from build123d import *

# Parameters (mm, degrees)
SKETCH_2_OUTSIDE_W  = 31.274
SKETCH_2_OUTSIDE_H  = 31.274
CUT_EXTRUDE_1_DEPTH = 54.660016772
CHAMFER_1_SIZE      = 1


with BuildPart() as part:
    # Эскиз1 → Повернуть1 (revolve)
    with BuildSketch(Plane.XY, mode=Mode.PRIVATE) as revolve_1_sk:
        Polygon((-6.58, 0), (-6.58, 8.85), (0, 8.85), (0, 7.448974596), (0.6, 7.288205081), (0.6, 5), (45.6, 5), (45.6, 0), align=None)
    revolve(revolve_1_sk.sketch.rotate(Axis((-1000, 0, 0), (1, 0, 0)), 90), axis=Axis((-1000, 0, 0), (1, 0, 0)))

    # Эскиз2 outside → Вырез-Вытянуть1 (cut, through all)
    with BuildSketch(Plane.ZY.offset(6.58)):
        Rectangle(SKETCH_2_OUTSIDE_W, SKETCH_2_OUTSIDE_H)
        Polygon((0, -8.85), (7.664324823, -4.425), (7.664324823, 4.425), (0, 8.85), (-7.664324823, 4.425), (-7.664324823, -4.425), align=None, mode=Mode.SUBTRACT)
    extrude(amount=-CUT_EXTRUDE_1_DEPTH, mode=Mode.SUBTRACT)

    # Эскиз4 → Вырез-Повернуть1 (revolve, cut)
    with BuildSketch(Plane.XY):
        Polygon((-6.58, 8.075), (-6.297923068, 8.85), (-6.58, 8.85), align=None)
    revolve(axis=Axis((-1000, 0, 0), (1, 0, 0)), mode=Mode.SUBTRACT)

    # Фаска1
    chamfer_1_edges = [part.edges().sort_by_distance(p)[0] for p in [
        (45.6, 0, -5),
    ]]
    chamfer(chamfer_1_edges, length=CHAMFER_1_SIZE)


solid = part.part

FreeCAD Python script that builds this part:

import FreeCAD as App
import Part
import Sketcher
from FreeCAD import Vector
Q = App.Units.Quantity


def edges_at(feature, points):
    """Names of the edges that pass closest to the given points."""
    edges = feature.Shape.Edges
    near = lambda p: min(range(len(edges)), key=lambda i: edges[i].distToShape(Part.Vertex(*p))[0])
    return sorted({f"Edge{near(p) + 1}" for p in points})

doc = App.newDocument("Part")
body = doc.addObject("PartDesign::Body", "Body")

# Sketch on XY plane
sketch1 = body.newObject("Sketcher::SketchObject", "Sketch")
sketch1.AttachmentSupport = (doc.getObject("XY_Plane"), [""])
sketch1.MapMode = "FlatFace"
sketch1.addGeometry(Part.LineSegment(Vector(-6.6, 8.8, 0), Vector(-6.6, 0, 0)), False)
sketch1.addGeometry(Part.LineSegment(Vector(-6.6, 0, 0), Vector(45.6, 0, 0)), False)
sketch1.addGeometry(Part.LineSegment(Vector(45.6, 0, 0), Vector(45.6, 5, 0)), False)
sketch1.addGeometry(Part.LineSegment(Vector(45.6, 5, 0), Vector(0.6, 5, 0)), False)
sketch1.addGeometry(Part.LineSegment(Vector(0.6, 5, 0), Vector(0.6, 7.3, 0)), False)
sketch1.addGeometry(Part.LineSegment(Vector(0.6, 7.3, 0), Vector(0, 7.4, 0)), False)
sketch1.addGeometry(Part.LineSegment(Vector(0, 7.4, 0), Vector(0, 8.8, 0)), False)
sketch1.addGeometry(Part.LineSegment(Vector(0, 8.8, 0), Vector(-6.6, 8.8, 0)), False)
sketch1.addConstraint(Sketcher.Constraint("Coincident", 0, 2, 1, 1))
sketch1.addConstraint(Sketcher.Constraint("Coincident", 1, 2, 2, 1))
sketch1.addConstraint(Sketcher.Constraint("Coincident", 2, 2, 3, 1))
sketch1.addConstraint(Sketcher.Constraint("Coincident", 3, 2, 4, 1))
sketch1.addConstraint(Sketcher.Constraint("Coincident", 4, 2, 5, 1))
sketch1.addConstraint(Sketcher.Constraint("Coincident", 5, 2, 6, 1))
sketch1.addConstraint(Sketcher.Constraint("Coincident", 6, 2, 7, 1))
sketch1.addConstraint(Sketcher.Constraint("Coincident", 7, 2, 0, 1))
sketch1.addConstraint(Sketcher.Constraint("Vertical", 0))
sketch1.addConstraint(Sketcher.Constraint("Horizontal", 1))
sketch1.addConstraint(Sketcher.Constraint("Vertical", 2))
sketch1.addConstraint(Sketcher.Constraint("Horizontal", 3))
sketch1.addConstraint(Sketcher.Constraint("Vertical", 4))
sketch1.addConstraint(Sketcher.Constraint("Vertical", 6))
sketch1.addConstraint(Sketcher.Constraint("Horizontal", 7))
sketch1.addConstraint(Sketcher.Constraint("PointOnObject", 0, 2, -1))
sketch1.addConstraint(Sketcher.Constraint("PointOnObject", 5, 2, -2))
sketch1.addConstraint(Sketcher.Constraint("DistanceX", 3, 2, 3, 1, Q("45 mm")))
sketch1.addConstraint(Sketcher.Constraint("DistanceY", 2, 1, 2, 2, Q("5 mm")))
sketch1.addConstraint(Sketcher.Constraint("Angle", 5, Q("165 deg")))
sketch1.addConstraint(Sketcher.Constraint("DistanceX", 1, 1, 1, 2, Q("52.18 mm")))
sketch1.addConstraint(Sketcher.Constraint("DistanceX", 7, 2, 7, 1, Q("6.58 mm")))
sketch1.addConstraint(Sketcher.Constraint("DistanceY", 0, 2, 0, 1, Q("8.85 mm")))
sketch1.addConstraint(Sketcher.Constraint("DistanceY", 4, 1, 4, 2, Q("2.288205 mm")))
revolution = body.newObject("PartDesign::Revolution", "Revolution")
revolution.Profile = sketch1
revolution.ReferenceAxis = (sketch1, ["H_Axis"])
revolution.Angle = 360

# Sketch on YZ plane
sketch2 = body.newObject("Sketcher::SketchObject", "Sketch001")
sketch2.AttachmentSupport = (doc.getObject("YZ_Plane"), [""])
sketch2.MapMode = "FlatFace"
sketch2.AttachmentOffset = App.Placement(Vector(0, 0, -6.58), App.Rotation())
sketch2.addGeometry(Part.LineSegment(Vector(16, -16, 0), Vector(-16, -16, 0)), False)
sketch2.addGeometry(Part.LineSegment(Vector(-16, -16, 0), Vector(-16, 16, 0)), False)
sketch2.addGeometry(Part.LineSegment(Vector(-16, 16, 0), Vector(16, 16, 0)), False)
sketch2.addGeometry(Part.LineSegment(Vector(16, 16, 0), Vector(16, -16, 0)), False)
sketch2.addGeometry(Part.LineSegment(Vector(-4, 8, 0), Vector(-9, 0, 0)), False)
sketch2.addGeometry(Part.LineSegment(Vector(-9, 0, 0), Vector(-4, -8, 0)), False)
sketch2.addGeometry(Part.LineSegment(Vector(-4, -8, 0), Vector(4, -8, 0)), False)
sketch2.addGeometry(Part.LineSegment(Vector(4, -8, 0), Vector(9, 0, 0)), False)
sketch2.addGeometry(Part.LineSegment(Vector(9, 0, 0), Vector(4, 8, 0)), False)
sketch2.addGeometry(Part.LineSegment(Vector(4, 8, 0), Vector(-4, 8, 0)), False)
sketch2.addConstraint(Sketcher.Constraint("Coincident", 0, 2, 1, 1))
sketch2.addConstraint(Sketcher.Constraint("Coincident", 1, 2, 2, 1))
sketch2.addConstraint(Sketcher.Constraint("Coincident", 2, 2, 3, 1))
sketch2.addConstraint(Sketcher.Constraint("Coincident", 3, 2, 0, 1))
sketch2.addConstraint(Sketcher.Constraint("Coincident", 4, 2, 5, 1))
sketch2.addConstraint(Sketcher.Constraint("Coincident", 5, 2, 6, 1))
sketch2.addConstraint(Sketcher.Constraint("Coincident", 6, 2, 7, 1))
sketch2.addConstraint(Sketcher.Constraint("Coincident", 7, 2, 8, 1))
sketch2.addConstraint(Sketcher.Constraint("Coincident", 8, 2, 9, 1))
sketch2.addConstraint(Sketcher.Constraint("Coincident", 9, 2, 4, 1))
sketch2.addConstraint(Sketcher.Constraint("Horizontal", 0))
sketch2.addConstraint(Sketcher.Constraint("Vertical", 1))
sketch2.addConstraint(Sketcher.Constraint("Horizontal", 2))
sketch2.addConstraint(Sketcher.Constraint("Vertical", 3))
sketch2.addConstraint(Sketcher.Constraint("Horizontal", 6))
sketch2.addConstraint(Sketcher.Constraint("Horizontal", 9))
sketch2.addConstraint(Sketcher.Constraint("Symmetric", 0, 2, 2, 2, -1, 1))
sketch2.addConstraint(Sketcher.Constraint("Symmetric", 4, 2, 7, 2, -1, 1))
sketch2.addConstraint(Sketcher.Constraint("Symmetric", 5, 2, 8, 2, -1, 1))
sketch2.addConstraint(Sketcher.Constraint("PointOnObject", 4, 2, -1))
sketch2.addConstraint(Sketcher.Constraint("Parallel", 4, 7))
sketch2.addConstraint(Sketcher.Constraint("Vertical", 6, 2, 8, 2))
sketch2.addConstraint(Sketcher.Constraint("Equal", 2, 1))
sketch2.addConstraint(Sketcher.Constraint("Angle", 4, Q("-120 deg")))
sketch2.addConstraint(Sketcher.Constraint("DistanceX", 6, 1, 6, 2, Q("8.85 mm")))
sketch2.addConstraint(Sketcher.Constraint("DistanceX", 4, 2, 7, 2, Q("17.7 mm")))
sketch2.addConstraint(Sketcher.Constraint("DistanceX", 0, 2, 0, 1, Q("31.274 mm")))
pocket1 = body.newObject("PartDesign::Pocket", "Pocket")
pocket1.Profile = sketch2
pocket1.Type = "ThroughAll"
pocket1.Reversed = True

# Sketch on XY plane
sketch3 = body.newObject("Sketcher::SketchObject", "Sketch002")
sketch3.AttachmentSupport = (doc.getObject("XY_Plane"), [""])
sketch3.MapMode = "FlatFace"
sketch3.addGeometry(Part.LineSegment(Vector(-6.58, 8.07, 0), Vector(-6.3, 8.85, 0)), False)
sketch3.addGeometry(Part.LineSegment(Vector(-6.3, 8.85, 0), Vector(-6.58, 8.85, 0)), False)
sketch3.addGeometry(Part.LineSegment(Vector(-6.58, 8.85, 0), Vector(-6.58, 8.07, 0)), False)
sketch3.addConstraint(Sketcher.Constraint("Coincident", 0, 2, 1, 1))
sketch3.addConstraint(Sketcher.Constraint("Coincident", 1, 2, 2, 1))
sketch3.addConstraint(Sketcher.Constraint("Coincident", 2, 2, 0, 1))
sketch3.addConstraint(Sketcher.Constraint("Horizontal", 1))
sketch3.addConstraint(Sketcher.Constraint("Vertical", 2))
sketch3.addConstraint(Sketcher.Constraint("Angle", 0, Q("70 deg")))
sketch3.addConstraint(Sketcher.Constraint("DistanceY", 2, 2, 2, 1, Q("0.775 mm")))
sketch3.addConstraint(Sketcher.Constraint("DistanceY", -1, 1, 0, 2, Q("8.85 mm")))
sketch3.addConstraint(Sketcher.Constraint("DistanceX", 1, 2, -1, 1, Q("6.58 mm")))
groove = body.newObject("PartDesign::Groove", "Groove")
groove.Profile = sketch3
groove.ReferenceAxis = (sketch3, ["H_Axis"])
groove.Angle = 360
doc.recompute()

chamfer = body.newObject("PartDesign::Chamfer", "Chamfer")
chamfer.Base = (groove, edges_at(groove, [(45.6, 0, -5)]))
chamfer.Size = 1

doc.recompute()
